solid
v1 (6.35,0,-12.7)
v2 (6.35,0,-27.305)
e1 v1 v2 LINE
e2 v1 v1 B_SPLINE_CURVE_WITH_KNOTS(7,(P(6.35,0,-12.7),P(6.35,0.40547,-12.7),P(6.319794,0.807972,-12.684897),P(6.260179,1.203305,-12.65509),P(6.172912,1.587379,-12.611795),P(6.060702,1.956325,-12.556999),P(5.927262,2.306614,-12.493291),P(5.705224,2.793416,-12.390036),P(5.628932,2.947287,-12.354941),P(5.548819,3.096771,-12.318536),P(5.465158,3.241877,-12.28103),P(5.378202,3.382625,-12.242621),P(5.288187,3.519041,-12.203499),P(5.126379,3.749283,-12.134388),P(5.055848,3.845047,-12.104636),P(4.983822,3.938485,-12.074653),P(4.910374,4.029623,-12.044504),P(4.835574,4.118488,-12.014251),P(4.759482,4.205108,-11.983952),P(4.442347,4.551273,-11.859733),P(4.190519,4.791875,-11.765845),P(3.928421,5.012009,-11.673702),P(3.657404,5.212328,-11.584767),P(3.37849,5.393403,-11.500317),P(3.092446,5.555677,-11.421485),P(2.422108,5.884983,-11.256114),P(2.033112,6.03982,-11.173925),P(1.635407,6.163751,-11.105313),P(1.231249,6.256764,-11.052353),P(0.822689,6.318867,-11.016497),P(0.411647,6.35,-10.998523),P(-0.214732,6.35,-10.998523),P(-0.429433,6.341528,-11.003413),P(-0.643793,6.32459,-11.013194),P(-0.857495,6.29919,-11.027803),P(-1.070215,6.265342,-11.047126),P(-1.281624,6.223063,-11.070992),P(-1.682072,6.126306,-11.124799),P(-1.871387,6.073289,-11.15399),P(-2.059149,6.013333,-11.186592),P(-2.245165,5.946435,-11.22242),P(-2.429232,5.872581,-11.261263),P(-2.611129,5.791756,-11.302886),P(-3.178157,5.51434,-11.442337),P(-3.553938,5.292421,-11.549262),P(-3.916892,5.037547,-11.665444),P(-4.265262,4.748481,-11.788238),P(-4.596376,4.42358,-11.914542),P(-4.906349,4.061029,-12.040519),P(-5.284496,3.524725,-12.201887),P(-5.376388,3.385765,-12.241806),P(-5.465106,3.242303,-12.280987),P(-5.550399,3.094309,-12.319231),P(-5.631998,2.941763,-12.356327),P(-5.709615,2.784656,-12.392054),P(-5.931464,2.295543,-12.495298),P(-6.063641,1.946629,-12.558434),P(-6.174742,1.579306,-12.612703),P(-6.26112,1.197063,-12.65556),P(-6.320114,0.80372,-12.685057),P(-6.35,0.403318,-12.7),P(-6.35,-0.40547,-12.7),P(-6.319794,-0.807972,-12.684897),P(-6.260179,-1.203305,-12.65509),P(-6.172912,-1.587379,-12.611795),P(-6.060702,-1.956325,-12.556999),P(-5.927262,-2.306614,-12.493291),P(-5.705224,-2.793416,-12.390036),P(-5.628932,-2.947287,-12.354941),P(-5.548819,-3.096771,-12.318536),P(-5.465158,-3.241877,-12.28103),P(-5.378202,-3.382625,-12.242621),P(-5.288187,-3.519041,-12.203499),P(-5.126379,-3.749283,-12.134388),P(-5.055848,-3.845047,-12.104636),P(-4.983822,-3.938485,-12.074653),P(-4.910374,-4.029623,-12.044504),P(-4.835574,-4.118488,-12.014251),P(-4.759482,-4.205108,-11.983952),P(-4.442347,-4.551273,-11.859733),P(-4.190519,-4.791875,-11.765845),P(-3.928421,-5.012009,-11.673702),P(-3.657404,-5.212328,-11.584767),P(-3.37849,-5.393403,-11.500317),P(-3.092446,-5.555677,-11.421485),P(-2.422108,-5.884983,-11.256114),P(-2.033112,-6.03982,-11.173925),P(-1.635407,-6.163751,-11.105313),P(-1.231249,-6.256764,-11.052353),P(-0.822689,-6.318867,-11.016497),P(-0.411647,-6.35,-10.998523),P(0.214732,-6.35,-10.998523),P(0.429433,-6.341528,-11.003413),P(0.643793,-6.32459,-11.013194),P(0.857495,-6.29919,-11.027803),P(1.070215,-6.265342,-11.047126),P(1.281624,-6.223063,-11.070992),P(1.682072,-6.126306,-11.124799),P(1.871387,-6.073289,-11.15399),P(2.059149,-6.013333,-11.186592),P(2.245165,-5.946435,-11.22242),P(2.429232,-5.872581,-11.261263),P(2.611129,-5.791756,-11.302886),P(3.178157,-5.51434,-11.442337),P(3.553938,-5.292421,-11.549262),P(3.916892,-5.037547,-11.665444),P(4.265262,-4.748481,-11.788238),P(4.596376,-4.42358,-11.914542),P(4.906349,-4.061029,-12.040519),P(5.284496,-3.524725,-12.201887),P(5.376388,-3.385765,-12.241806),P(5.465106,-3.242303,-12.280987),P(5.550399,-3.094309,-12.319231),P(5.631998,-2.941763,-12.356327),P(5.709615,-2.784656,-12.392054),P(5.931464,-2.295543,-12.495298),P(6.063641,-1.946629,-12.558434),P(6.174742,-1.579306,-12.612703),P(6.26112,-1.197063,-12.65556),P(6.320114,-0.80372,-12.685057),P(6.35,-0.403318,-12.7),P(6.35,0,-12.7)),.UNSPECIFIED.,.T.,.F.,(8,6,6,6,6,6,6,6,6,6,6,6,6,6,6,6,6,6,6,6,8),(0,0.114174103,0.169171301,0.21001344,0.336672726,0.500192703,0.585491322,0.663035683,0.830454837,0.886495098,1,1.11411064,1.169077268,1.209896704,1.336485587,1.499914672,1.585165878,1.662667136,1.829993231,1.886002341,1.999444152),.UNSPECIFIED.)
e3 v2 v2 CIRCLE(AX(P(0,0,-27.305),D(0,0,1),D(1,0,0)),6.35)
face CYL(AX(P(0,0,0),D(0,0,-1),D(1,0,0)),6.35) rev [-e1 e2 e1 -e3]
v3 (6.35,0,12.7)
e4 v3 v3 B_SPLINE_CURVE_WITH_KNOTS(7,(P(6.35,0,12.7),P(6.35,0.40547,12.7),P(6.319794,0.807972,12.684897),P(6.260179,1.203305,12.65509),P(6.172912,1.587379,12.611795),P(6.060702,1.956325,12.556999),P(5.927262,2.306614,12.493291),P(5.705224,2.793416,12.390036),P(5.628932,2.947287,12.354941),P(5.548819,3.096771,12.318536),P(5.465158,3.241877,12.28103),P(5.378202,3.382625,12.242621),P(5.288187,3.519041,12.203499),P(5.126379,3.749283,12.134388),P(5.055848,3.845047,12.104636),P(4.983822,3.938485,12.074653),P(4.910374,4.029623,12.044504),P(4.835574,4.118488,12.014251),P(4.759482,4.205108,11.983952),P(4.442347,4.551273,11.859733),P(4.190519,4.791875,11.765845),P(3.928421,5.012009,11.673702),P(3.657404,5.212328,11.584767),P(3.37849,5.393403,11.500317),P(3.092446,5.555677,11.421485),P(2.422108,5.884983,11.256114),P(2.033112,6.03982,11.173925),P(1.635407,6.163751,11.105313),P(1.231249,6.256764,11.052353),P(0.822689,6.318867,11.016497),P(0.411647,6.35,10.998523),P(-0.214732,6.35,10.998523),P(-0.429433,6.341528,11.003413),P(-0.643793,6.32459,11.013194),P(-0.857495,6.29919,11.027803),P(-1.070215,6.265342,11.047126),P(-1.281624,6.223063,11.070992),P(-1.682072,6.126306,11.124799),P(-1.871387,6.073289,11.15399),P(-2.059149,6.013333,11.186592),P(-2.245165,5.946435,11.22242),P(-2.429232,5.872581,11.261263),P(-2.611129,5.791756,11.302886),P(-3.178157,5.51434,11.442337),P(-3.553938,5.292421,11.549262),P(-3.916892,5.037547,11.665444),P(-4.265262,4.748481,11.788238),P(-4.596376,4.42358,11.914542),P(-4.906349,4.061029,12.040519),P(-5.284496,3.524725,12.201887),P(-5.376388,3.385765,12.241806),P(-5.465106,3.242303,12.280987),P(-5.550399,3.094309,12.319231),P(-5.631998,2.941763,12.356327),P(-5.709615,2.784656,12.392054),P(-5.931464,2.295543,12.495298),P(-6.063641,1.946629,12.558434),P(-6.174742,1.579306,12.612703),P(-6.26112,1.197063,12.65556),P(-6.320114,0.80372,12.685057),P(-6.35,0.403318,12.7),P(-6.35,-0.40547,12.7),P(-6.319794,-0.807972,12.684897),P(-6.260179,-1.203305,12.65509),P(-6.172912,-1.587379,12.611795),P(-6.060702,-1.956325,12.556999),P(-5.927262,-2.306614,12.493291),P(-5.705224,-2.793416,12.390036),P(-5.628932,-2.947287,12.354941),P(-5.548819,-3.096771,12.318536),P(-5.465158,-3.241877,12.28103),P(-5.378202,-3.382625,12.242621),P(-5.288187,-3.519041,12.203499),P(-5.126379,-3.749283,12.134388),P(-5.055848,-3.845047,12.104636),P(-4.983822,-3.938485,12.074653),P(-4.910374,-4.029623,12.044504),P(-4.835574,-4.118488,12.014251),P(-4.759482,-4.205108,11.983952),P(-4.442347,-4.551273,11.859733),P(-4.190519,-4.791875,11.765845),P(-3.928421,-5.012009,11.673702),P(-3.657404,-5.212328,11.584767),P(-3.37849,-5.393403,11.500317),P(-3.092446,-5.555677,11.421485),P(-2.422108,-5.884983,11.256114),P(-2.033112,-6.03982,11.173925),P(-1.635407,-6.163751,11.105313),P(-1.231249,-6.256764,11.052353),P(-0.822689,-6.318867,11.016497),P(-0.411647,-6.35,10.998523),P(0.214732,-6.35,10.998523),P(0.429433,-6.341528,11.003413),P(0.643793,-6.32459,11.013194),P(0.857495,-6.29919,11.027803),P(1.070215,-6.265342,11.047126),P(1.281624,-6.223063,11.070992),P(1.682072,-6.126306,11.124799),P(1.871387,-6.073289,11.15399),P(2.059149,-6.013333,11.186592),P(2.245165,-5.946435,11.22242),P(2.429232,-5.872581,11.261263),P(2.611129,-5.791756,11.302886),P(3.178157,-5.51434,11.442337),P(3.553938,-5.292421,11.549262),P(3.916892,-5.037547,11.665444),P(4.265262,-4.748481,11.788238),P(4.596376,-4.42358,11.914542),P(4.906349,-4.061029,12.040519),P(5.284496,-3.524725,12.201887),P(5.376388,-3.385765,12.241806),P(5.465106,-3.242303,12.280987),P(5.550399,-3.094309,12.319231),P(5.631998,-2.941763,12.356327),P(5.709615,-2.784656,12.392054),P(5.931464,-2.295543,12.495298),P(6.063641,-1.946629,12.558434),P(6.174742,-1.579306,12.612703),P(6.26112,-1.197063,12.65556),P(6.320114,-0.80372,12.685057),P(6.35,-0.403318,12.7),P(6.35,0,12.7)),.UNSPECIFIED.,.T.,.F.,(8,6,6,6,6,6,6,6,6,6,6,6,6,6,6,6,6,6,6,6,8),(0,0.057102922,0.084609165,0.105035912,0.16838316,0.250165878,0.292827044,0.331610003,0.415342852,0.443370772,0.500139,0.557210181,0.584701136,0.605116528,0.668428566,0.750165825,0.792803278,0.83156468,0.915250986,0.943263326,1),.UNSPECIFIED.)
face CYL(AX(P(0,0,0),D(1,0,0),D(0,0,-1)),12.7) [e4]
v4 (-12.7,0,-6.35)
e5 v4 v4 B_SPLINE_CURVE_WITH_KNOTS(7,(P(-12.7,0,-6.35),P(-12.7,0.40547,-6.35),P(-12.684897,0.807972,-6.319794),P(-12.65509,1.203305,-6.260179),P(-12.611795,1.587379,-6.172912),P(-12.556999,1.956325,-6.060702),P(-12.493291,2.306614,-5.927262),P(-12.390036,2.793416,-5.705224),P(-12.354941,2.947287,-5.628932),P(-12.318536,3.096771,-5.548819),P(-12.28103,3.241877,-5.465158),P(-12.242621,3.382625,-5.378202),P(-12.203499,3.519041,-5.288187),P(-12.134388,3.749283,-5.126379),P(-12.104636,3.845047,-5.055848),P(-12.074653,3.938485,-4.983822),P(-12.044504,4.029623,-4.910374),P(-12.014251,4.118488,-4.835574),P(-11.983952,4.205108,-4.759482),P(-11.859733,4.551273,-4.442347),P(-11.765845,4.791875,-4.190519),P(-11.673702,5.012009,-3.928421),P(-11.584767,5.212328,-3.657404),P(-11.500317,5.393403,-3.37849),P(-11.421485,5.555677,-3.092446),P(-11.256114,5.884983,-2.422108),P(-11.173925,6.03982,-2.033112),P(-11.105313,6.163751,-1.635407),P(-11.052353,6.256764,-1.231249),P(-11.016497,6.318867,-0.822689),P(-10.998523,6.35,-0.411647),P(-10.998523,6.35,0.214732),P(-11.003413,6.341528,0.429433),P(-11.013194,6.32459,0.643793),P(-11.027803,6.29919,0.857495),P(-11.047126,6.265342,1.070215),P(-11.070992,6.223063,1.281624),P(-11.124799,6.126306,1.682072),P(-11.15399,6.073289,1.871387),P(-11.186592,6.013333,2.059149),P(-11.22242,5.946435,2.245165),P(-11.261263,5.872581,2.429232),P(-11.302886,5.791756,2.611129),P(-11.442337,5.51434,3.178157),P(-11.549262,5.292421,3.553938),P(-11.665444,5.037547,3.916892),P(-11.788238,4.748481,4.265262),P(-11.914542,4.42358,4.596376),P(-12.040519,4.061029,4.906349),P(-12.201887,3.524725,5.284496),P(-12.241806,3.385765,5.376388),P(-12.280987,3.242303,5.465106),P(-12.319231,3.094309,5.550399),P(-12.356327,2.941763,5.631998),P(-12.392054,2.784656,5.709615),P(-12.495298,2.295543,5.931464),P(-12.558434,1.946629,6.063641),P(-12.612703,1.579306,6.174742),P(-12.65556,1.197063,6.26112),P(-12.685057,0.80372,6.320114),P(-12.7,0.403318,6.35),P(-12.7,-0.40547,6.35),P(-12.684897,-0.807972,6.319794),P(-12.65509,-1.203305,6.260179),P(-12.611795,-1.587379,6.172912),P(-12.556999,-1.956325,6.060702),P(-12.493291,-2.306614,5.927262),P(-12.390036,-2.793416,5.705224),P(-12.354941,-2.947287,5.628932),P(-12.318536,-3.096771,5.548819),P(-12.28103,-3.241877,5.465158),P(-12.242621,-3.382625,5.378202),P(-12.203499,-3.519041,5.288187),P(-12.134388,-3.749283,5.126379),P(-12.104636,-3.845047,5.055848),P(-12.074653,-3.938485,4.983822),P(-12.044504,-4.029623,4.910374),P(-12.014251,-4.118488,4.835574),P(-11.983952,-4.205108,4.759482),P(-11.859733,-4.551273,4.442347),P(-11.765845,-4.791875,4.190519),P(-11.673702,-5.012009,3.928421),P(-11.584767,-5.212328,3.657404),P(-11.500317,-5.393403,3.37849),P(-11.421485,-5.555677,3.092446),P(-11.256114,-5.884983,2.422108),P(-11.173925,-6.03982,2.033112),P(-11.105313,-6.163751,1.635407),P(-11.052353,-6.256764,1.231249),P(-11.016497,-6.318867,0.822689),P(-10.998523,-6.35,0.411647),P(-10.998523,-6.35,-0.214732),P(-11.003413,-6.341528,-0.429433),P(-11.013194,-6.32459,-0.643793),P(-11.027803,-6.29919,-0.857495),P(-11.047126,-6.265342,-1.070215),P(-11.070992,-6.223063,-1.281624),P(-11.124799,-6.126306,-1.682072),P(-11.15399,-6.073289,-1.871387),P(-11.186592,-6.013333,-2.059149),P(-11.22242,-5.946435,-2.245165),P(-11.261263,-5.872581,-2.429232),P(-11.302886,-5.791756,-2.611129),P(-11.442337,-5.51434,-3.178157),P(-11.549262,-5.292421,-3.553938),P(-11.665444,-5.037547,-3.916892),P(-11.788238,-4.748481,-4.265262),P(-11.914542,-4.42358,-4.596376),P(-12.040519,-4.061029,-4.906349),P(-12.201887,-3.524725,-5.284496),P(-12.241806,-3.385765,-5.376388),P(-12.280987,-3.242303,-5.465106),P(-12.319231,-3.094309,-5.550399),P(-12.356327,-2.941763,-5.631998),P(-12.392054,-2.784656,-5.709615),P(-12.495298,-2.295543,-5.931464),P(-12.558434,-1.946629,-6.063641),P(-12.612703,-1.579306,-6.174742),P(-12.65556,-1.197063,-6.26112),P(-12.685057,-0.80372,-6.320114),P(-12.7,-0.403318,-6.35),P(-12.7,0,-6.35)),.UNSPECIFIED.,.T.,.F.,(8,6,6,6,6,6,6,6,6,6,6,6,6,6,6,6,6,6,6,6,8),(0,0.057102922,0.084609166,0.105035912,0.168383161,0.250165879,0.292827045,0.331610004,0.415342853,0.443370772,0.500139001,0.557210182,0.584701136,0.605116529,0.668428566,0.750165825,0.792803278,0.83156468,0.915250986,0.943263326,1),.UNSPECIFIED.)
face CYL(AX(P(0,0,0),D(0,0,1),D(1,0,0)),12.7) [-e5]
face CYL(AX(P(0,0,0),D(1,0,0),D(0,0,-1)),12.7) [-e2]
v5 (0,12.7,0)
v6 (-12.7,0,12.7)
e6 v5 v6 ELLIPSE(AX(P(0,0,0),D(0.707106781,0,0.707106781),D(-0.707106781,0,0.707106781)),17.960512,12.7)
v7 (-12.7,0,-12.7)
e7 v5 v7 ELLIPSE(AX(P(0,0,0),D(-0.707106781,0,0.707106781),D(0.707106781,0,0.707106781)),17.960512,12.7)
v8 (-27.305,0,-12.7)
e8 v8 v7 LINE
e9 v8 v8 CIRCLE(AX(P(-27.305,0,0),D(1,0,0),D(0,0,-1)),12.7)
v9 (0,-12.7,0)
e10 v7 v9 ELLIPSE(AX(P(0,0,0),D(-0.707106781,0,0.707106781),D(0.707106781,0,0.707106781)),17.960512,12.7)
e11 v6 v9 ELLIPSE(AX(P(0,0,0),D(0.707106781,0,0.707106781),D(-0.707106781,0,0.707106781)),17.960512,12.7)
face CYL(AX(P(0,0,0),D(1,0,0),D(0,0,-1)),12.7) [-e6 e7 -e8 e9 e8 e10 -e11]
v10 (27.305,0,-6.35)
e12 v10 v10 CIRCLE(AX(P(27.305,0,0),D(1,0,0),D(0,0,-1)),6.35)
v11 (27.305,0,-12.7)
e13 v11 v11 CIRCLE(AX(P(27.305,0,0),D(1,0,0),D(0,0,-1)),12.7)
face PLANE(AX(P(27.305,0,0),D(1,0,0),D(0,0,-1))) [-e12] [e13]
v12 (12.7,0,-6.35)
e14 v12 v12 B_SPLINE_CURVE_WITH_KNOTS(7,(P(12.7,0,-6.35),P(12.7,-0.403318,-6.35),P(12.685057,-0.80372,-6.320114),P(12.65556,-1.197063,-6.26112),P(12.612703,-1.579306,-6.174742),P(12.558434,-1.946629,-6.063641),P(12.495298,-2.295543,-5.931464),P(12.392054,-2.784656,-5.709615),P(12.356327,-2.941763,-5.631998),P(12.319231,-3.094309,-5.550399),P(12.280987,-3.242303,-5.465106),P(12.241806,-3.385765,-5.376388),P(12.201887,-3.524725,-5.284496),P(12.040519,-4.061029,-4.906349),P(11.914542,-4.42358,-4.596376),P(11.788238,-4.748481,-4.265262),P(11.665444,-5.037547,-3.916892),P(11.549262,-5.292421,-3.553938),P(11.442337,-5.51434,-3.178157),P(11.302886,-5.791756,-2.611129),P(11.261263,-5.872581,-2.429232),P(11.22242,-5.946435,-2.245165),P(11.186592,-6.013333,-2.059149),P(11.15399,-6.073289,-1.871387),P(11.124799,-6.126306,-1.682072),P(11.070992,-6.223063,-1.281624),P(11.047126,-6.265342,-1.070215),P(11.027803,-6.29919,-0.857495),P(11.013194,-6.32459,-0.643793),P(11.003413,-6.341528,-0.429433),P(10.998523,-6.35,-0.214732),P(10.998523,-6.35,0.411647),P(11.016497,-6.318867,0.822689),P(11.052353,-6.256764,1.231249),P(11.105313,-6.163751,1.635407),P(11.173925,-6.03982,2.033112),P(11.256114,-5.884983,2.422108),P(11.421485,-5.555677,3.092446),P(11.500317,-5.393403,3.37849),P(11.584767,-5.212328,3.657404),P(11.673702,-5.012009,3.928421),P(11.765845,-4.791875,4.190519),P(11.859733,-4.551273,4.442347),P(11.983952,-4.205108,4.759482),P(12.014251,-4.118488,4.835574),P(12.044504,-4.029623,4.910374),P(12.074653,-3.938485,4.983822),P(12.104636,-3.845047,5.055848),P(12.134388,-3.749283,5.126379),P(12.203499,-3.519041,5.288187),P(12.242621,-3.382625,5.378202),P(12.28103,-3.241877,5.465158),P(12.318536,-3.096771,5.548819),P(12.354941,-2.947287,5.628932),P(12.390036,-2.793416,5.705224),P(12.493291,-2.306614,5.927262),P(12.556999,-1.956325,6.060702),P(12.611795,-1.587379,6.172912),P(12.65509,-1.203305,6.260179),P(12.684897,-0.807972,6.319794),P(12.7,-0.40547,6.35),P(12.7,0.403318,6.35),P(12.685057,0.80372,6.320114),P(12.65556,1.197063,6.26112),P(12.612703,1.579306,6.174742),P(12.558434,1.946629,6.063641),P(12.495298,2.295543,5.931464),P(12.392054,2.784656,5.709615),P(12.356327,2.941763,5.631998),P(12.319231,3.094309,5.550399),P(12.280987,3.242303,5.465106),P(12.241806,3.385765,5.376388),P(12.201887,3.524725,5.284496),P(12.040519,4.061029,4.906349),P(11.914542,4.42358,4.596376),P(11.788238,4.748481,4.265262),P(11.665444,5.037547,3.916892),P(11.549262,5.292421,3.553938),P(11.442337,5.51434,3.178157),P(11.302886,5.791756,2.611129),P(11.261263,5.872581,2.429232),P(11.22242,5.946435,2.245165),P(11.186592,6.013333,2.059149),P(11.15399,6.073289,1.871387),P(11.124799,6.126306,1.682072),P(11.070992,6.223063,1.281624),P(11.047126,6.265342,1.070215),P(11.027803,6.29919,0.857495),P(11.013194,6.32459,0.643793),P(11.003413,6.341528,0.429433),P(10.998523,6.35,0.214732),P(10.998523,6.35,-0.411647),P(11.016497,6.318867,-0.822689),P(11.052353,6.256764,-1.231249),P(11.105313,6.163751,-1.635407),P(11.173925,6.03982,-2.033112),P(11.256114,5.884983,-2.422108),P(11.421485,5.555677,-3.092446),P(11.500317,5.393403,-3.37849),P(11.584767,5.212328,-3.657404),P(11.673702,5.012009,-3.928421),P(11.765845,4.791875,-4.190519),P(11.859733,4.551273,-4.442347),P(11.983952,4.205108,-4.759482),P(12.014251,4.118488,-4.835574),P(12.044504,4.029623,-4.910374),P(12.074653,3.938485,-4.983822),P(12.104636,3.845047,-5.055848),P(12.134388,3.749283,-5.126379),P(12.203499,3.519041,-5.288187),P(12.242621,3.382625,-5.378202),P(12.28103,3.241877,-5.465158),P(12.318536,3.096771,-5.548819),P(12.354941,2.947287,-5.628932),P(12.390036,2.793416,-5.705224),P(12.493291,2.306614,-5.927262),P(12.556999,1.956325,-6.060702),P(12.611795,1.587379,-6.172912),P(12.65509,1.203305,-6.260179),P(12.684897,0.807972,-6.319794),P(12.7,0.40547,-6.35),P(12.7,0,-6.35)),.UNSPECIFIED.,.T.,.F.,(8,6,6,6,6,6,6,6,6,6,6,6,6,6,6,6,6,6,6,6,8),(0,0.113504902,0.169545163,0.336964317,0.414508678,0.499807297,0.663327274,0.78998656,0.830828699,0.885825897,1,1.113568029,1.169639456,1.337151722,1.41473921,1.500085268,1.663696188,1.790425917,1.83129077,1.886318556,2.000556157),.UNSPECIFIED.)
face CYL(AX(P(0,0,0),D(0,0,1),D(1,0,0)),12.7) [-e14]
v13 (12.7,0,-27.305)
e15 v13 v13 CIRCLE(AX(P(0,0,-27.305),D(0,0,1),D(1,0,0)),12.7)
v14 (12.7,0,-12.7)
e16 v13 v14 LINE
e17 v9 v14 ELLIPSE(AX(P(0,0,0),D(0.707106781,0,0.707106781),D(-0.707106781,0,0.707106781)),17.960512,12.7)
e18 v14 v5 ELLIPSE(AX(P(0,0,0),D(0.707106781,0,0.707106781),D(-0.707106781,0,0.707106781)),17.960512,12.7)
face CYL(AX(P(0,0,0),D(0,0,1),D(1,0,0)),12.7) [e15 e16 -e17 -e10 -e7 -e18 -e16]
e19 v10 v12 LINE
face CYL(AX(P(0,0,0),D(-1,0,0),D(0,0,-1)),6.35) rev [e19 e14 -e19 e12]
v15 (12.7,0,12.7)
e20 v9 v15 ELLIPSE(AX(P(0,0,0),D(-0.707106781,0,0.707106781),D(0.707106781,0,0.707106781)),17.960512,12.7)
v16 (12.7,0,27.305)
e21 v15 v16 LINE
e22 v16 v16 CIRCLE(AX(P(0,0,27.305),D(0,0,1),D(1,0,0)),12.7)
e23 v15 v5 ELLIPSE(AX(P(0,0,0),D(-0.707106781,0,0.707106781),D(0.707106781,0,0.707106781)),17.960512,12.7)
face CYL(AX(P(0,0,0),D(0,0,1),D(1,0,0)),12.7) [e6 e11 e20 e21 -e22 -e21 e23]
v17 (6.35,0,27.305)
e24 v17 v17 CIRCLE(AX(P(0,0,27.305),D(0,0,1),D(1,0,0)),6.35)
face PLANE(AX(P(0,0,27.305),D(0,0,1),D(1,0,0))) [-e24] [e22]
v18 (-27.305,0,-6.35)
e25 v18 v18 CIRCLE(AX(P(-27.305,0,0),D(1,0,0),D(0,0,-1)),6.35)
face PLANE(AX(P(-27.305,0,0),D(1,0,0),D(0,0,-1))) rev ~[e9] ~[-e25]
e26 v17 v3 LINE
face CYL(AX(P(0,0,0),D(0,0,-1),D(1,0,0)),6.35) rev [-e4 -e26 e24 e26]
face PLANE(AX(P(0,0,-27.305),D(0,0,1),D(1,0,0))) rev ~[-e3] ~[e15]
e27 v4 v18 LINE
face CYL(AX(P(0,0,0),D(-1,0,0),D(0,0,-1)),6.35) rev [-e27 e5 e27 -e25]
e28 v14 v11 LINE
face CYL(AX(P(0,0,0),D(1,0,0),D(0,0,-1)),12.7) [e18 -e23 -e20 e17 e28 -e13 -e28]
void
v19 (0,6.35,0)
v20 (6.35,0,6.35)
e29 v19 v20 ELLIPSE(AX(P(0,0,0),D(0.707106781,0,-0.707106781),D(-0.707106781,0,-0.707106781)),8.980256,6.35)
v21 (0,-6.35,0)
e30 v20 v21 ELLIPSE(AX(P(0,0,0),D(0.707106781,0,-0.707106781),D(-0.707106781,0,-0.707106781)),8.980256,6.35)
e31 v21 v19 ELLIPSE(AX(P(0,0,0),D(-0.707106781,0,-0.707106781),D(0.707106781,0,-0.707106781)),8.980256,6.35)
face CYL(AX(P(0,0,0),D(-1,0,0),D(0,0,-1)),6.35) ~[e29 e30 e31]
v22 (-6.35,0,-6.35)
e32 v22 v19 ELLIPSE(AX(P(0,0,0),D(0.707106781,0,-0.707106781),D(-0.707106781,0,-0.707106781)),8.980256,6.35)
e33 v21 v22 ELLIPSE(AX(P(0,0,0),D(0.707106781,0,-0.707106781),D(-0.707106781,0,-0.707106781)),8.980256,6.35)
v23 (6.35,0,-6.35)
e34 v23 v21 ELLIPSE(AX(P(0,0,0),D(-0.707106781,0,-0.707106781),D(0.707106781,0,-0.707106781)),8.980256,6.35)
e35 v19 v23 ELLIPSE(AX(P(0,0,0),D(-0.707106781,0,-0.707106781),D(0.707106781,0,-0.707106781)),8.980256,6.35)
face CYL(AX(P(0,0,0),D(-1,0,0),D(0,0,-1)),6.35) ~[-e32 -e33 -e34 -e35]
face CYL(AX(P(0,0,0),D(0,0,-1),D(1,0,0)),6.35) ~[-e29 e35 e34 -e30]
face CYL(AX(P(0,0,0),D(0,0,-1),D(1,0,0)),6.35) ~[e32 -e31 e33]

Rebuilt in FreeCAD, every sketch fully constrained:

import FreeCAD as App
import Part
import Sketcher
from FreeCAD import Vector
Q = App.Units.Quantity

doc = App.newDocument("Part")
body = doc.addObject("PartDesign::Body", "Body")

sketch1 = body.newObject("Sketcher::SketchObject", "Sketch")
sketch1.AttachmentSupport = (doc.getObject("XY_Plane"), [""])
sketch1.MapMode = "FlatFace"
sketch1.addGeometry(Part.Circle(Vector(0, 0, 0), Vector(0, 0, 1), 13), False)
sketch1.addGeometry(Part.Circle(Vector(0, 0, 0), Vector(0, 0, 1), 6), False)
sketch1.addConstraint(Sketcher.Constraint("Coincident", 0, 3, -1, 1))
sketch1.addConstraint(Sketcher.Constraint("Coincident", 1, 3, -1, 1))
sketch1.addConstraint(Sketcher.Constraint("Diameter", 0, Q("1 in")))
sketch1.addConstraint(Sketcher.Constraint("Diameter", 1, Q("0.5 in")))
pad1 = body.newObject("PartDesign::Pad", "Pad")
pad1.Profile = sketch1
pad1.Length = Q("2.15 in")
pad1.Midplane = True

sketch2 = body.newObject("Sketcher::SketchObject", "Sketch001")
sketch2.AttachmentSupport = (doc.getObject("YZ_Plane"), [""])
sketch2.MapMode = "FlatFace"
sketch2.addGeometry(Part.Circle(Vector(0, 0, 0), Vector(0, 0, 1), 13), False)
sketch2.addGeometry(Part.Circle(Vector(0, 0, 0), Vector(0, 0, 1), 6), False)
sketch2.addConstraint(Sketcher.Constraint("Coincident", 0, 3, -1, 1))
sketch2.addConstraint(Sketcher.Constraint("Coincident", 1, 3, -1, 1))
sketch2.addConstraint(Sketcher.Constraint("Diameter", 0, Q("1 in")))
sketch2.addConstraint(Sketcher.Constraint("Diameter", 1, Q("0.5 in")))
pad2 = body.newObject("PartDesign::Pad", "Pad001")
pad2.Profile = sketch2
pad2.Length = Q("2.15 in")
pad2.Midplane = True

doc.recompute()
